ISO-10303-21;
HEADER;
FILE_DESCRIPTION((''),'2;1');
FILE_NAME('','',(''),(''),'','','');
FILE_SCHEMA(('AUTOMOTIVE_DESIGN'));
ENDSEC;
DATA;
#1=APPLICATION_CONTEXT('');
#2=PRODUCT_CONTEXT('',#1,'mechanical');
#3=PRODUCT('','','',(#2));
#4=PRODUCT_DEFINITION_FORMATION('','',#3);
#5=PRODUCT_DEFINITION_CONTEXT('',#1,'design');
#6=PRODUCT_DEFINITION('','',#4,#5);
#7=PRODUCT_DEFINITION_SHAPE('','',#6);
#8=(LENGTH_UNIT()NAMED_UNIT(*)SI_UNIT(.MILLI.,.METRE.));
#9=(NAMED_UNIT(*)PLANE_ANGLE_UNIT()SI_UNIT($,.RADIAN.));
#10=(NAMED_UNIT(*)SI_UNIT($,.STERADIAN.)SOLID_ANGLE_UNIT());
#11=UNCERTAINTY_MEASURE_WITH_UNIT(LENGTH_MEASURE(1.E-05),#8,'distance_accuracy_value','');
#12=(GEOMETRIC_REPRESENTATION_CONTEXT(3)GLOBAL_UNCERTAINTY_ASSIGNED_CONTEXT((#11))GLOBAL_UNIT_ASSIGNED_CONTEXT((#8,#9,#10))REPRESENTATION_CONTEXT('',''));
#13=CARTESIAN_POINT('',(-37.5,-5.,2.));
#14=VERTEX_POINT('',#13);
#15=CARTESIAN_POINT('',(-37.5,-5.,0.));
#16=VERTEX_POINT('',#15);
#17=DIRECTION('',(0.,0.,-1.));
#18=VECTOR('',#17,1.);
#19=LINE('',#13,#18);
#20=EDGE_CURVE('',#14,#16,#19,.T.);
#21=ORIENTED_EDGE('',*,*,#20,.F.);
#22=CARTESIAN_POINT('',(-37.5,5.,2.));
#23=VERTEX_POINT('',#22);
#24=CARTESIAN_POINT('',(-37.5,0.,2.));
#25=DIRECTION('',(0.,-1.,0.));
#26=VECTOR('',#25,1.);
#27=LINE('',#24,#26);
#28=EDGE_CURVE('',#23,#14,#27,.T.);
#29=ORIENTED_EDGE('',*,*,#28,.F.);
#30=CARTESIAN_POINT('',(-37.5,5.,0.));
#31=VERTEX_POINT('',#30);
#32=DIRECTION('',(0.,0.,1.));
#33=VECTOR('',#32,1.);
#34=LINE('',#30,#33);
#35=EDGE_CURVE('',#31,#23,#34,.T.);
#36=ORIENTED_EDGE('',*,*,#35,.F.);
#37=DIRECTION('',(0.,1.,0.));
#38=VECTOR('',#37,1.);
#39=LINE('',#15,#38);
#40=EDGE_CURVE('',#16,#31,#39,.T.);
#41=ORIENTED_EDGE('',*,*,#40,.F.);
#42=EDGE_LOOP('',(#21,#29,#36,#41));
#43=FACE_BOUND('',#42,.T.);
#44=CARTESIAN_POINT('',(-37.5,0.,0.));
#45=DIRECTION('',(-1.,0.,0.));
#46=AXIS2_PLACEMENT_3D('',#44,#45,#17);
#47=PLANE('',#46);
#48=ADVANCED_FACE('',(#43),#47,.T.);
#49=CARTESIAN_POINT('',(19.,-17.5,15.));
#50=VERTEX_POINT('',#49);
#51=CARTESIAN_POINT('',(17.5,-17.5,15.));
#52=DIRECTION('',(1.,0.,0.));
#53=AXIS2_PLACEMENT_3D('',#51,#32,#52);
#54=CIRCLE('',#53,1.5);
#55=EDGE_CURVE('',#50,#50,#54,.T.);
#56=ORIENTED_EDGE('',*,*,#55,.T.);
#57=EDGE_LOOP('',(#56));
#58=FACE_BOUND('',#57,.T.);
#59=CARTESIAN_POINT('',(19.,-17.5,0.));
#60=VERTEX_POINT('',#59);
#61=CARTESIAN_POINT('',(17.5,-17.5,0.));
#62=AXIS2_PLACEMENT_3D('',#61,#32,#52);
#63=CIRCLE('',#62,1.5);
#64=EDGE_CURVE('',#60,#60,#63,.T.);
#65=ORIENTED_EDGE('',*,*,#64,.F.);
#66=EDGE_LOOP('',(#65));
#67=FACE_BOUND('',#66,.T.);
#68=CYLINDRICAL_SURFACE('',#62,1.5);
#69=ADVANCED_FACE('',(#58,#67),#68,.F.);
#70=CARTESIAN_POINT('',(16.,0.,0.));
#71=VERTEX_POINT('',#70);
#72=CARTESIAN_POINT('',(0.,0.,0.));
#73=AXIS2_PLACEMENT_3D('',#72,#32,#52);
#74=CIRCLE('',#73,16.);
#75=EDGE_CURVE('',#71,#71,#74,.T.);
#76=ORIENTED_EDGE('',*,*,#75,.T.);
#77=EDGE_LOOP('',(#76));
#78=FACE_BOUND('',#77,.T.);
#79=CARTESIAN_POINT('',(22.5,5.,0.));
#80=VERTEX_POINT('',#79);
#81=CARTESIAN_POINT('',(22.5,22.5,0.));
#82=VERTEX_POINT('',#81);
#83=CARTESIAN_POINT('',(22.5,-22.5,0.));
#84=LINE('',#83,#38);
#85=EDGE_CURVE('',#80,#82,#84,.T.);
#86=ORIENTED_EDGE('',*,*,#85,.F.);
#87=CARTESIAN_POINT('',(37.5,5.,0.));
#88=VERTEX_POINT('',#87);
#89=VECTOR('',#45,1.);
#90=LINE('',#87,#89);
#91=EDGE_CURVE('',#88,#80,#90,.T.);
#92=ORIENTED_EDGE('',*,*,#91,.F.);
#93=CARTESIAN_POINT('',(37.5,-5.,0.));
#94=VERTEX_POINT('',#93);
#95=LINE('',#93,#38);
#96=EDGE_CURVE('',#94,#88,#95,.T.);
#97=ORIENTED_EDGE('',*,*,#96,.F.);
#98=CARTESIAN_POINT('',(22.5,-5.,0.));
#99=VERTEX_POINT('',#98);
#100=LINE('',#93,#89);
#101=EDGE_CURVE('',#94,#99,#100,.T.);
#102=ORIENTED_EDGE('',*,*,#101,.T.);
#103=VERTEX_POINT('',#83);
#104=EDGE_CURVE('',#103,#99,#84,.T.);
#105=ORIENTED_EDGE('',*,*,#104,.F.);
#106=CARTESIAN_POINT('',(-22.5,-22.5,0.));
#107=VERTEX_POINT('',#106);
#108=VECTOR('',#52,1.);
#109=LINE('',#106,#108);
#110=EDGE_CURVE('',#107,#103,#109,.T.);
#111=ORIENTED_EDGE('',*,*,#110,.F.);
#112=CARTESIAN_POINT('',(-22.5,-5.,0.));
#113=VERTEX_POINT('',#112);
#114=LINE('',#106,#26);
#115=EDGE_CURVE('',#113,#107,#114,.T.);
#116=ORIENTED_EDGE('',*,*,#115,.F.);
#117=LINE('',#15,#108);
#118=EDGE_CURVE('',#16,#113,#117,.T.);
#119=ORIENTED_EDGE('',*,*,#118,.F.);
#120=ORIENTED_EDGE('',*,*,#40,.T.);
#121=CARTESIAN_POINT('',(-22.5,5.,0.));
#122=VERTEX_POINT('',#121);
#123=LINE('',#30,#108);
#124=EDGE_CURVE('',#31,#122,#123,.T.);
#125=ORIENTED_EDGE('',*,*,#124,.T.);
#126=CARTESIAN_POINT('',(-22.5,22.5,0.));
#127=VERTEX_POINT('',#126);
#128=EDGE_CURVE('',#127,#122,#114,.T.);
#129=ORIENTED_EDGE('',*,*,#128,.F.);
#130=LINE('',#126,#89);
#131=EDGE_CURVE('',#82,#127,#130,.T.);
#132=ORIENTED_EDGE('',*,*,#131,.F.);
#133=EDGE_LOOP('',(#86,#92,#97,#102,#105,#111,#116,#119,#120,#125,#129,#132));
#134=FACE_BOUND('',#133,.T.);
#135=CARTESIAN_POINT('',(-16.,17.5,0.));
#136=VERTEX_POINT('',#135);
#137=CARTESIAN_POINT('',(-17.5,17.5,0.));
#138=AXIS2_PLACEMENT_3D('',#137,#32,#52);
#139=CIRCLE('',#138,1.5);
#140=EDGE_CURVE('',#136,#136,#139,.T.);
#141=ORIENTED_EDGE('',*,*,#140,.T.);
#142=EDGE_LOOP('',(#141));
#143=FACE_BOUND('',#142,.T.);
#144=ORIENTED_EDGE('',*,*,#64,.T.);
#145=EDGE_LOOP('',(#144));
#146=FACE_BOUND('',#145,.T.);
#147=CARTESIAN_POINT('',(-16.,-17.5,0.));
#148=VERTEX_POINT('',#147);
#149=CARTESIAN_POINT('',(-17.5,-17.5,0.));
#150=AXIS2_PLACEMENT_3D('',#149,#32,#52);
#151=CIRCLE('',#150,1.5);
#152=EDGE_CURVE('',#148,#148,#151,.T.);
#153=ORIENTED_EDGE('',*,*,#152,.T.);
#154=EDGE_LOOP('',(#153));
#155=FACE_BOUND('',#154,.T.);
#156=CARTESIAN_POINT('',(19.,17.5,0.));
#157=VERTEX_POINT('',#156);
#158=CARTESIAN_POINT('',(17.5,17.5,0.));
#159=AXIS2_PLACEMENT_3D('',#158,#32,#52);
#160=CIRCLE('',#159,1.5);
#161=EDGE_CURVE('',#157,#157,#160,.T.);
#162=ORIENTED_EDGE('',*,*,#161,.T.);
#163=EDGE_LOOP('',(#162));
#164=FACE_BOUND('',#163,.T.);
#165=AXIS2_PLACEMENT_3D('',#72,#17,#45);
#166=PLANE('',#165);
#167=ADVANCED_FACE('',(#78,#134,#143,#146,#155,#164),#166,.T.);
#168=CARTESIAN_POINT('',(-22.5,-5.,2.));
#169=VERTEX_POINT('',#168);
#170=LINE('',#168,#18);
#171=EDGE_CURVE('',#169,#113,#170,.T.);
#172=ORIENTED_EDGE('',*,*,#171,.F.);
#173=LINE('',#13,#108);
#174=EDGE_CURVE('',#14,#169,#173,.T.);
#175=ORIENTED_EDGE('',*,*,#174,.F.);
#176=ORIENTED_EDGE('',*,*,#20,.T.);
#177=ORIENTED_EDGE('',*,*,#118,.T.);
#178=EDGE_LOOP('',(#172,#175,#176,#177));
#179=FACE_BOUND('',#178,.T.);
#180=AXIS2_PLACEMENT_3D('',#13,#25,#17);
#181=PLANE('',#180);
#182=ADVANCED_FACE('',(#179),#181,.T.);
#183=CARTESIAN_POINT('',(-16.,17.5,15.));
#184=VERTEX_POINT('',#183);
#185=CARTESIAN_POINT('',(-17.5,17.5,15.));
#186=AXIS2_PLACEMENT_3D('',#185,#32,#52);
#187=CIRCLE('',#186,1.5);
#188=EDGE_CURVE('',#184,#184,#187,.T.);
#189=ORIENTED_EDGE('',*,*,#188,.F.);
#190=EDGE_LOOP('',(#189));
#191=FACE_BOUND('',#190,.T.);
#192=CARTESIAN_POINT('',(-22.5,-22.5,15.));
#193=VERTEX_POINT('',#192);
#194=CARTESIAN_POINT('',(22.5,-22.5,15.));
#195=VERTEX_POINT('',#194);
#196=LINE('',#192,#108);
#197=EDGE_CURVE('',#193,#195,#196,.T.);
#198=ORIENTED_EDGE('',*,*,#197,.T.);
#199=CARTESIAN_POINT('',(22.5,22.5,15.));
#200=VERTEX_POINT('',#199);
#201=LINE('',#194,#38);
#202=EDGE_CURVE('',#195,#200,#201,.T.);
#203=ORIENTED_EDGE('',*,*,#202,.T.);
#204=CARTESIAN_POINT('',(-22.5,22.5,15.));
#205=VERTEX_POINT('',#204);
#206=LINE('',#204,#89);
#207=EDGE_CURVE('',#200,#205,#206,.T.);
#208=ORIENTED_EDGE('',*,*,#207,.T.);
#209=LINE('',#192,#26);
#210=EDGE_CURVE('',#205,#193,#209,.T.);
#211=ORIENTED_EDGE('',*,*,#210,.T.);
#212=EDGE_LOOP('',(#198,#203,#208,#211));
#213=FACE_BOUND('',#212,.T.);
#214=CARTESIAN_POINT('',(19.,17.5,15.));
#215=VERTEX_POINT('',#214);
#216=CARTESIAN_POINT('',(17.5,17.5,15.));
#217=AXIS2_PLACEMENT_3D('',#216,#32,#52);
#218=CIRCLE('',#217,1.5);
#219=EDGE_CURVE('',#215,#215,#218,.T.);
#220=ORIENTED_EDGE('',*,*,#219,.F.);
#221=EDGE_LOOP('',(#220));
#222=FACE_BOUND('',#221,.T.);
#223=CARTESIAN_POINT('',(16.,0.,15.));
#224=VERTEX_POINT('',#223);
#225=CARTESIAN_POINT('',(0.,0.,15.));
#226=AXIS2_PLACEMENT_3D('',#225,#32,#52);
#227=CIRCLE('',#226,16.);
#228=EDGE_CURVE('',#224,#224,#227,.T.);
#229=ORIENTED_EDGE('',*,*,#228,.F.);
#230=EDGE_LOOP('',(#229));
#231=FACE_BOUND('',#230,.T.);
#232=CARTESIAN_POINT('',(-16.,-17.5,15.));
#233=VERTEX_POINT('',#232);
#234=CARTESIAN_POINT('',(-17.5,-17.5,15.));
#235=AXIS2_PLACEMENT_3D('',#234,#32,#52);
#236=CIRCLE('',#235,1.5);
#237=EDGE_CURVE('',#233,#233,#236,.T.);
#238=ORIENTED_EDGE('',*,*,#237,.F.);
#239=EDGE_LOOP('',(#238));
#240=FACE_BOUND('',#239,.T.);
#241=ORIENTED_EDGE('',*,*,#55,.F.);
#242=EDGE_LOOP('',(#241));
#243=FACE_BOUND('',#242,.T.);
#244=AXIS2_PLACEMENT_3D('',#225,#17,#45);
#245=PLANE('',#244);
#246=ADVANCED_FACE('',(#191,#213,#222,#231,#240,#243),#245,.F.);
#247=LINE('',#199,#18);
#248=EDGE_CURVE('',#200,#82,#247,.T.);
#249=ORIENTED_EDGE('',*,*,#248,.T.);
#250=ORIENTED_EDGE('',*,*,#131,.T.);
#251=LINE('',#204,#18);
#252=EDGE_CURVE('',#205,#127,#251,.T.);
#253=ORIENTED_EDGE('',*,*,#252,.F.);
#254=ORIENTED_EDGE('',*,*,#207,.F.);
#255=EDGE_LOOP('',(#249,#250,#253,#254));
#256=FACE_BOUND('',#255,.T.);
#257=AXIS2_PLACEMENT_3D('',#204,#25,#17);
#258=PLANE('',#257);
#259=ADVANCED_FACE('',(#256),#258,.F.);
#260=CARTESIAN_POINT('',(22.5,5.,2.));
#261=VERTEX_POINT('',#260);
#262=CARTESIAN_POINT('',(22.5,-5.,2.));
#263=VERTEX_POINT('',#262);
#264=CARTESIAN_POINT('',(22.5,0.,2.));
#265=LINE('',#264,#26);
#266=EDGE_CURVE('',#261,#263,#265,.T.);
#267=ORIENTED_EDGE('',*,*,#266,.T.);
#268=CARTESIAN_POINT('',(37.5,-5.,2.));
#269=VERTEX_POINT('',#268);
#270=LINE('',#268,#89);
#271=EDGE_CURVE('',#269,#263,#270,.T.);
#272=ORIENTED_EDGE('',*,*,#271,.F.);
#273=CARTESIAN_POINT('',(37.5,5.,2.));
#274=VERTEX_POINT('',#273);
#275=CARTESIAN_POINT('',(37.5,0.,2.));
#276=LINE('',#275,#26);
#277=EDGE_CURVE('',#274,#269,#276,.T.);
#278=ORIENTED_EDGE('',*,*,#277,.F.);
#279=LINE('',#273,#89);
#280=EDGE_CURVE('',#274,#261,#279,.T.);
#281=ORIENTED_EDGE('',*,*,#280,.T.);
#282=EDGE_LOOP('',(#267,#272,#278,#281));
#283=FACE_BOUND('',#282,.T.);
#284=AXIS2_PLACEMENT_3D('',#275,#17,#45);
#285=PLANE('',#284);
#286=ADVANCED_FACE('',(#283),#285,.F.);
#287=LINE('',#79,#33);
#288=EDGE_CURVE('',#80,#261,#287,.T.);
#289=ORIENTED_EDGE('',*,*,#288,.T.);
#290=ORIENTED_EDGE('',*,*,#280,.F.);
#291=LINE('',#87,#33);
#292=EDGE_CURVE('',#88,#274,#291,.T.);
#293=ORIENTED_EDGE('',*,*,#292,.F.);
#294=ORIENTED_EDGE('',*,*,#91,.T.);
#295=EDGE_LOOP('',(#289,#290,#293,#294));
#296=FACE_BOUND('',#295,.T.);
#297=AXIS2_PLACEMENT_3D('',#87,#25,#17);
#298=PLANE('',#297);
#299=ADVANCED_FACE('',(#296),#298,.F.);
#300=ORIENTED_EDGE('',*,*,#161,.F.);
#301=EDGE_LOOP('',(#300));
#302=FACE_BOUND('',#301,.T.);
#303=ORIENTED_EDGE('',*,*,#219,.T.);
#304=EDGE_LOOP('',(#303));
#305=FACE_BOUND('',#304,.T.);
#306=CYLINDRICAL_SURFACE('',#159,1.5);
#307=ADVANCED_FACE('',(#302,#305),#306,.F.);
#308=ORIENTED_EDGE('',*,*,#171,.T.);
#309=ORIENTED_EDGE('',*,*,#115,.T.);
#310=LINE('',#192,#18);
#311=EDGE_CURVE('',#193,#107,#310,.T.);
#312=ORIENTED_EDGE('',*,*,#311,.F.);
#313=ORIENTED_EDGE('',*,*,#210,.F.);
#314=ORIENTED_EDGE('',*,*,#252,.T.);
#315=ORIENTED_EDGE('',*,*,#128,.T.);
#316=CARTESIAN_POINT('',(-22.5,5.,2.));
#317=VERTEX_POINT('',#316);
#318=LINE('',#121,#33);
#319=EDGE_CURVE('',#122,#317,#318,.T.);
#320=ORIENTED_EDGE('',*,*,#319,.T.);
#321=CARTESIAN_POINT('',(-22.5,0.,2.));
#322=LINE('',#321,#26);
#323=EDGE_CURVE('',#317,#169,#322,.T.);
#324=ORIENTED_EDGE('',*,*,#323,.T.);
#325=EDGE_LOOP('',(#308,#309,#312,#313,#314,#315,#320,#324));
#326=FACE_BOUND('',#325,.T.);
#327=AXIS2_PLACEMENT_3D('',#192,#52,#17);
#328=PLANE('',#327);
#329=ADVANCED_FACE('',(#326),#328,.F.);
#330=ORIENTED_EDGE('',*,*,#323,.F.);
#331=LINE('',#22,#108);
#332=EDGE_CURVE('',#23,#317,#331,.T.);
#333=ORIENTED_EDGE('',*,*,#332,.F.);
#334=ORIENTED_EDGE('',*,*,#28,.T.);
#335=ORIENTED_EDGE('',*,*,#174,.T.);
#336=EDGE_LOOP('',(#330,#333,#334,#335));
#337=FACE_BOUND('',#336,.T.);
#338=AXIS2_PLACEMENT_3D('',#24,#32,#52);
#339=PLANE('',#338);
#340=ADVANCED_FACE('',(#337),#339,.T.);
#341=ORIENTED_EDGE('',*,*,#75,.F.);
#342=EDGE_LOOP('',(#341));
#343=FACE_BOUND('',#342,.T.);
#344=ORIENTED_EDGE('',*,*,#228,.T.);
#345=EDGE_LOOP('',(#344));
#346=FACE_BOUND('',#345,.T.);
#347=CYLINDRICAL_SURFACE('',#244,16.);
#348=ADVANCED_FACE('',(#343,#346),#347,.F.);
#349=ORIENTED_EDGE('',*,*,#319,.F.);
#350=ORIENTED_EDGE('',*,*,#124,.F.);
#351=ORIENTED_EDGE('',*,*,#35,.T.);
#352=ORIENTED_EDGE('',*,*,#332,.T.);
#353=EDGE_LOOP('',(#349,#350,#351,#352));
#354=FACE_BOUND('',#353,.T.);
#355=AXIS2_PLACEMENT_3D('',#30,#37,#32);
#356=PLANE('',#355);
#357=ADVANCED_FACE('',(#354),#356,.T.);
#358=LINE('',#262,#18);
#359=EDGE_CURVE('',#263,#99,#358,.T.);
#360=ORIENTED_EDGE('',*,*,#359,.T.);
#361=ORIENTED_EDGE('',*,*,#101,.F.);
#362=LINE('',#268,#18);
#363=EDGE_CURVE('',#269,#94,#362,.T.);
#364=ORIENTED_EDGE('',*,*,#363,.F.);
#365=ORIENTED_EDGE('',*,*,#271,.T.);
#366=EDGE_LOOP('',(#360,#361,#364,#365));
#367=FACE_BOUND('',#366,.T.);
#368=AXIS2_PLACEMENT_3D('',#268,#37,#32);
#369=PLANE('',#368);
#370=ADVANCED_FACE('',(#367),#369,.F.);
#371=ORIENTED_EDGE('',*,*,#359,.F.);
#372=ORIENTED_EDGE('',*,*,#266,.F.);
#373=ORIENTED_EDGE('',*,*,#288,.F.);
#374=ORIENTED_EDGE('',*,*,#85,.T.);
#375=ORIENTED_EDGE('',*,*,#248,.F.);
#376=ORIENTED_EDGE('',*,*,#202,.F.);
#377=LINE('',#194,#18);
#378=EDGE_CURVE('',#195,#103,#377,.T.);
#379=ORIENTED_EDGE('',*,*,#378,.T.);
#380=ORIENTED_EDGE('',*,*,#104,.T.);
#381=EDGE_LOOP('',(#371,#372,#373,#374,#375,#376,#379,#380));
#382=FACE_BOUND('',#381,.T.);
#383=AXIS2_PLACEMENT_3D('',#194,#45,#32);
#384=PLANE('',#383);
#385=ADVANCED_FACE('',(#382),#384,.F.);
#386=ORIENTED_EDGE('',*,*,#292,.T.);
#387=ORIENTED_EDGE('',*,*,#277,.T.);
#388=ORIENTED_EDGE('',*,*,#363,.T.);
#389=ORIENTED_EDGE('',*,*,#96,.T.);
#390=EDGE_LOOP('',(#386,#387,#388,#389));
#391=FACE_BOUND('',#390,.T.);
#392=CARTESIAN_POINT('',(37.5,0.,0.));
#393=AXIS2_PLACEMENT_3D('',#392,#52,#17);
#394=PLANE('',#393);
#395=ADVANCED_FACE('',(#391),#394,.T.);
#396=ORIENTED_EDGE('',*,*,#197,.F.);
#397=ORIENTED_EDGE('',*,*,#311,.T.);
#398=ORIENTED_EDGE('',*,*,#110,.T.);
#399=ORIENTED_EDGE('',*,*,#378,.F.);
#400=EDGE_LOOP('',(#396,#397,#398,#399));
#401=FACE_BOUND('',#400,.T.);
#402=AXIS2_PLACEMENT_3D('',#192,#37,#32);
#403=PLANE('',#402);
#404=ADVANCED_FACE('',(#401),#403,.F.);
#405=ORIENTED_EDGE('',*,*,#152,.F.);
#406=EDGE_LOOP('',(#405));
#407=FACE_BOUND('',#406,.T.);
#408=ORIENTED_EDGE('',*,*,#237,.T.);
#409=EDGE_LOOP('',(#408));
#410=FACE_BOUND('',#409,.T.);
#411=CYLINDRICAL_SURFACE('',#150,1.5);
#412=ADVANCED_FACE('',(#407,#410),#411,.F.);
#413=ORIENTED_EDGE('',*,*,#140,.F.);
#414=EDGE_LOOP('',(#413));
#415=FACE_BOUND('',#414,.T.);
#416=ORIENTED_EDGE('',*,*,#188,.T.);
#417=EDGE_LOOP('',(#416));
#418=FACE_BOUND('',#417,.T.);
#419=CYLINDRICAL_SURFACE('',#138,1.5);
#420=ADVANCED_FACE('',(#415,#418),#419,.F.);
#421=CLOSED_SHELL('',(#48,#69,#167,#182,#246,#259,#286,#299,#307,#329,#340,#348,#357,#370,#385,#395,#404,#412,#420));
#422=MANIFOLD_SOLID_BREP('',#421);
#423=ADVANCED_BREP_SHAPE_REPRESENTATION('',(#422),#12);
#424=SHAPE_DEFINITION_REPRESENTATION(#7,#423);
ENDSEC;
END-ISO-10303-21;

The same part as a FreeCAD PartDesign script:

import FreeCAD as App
import Part
import Sketcher

V = App.Vector
Q = App.Units.Quantity

doc = App.newDocument("Part")
params = doc.addObject("Spreadsheet::Sheet", "Params")
for row, (alias, value) in enumerate([
    ("sketch1_diameter", "32 mm"),
    ("sketch1_width", "45 mm"),
    ("pad1_length", "15 mm"),
    ("sketch2_diameter", "3 mm"),
    ("pocket1_length", "15 mm"),
    ("sketch3_width", "10 mm"),
    ("sketch3_height", "2 mm"),
    ("pad2_length", "15 mm"),
], start=1):
    params.set(f"A{row}", alias)
    params.set(f"B{row}", "=" + value)
    params.setAlias(f"B{row}", alias)

body = doc.addObject("PartDesign::Body", "Body")

# Sketch on XY plane
sketch1 = body.newObject("Sketcher::SketchObject", "Sketch")
sketch1.AttachmentSupport = (doc.getObject("XY_Plane"), [""])
sketch1.MapMode = "FlatFace"
sketch1.addGeometry(Part.LineSegment(V(-22, 22, 0), V(-22, -22, 0)), False)
sketch1.addGeometry(Part.LineSegment(V(-22, -22, 0), V(22, -22, 0)), False)
sketch1.addGeometry(Part.LineSegment(V(22, -22, 0), V(22, 22, 0)), False)
sketch1.addGeometry(Part.LineSegment(V(22, 22, 0), V(-22, 22, 0)), False)
sketch1.addGeometry(Part.Circle(V(0, 0, 0), V(0, 0, 1), 16), False)
sketch1.addConstraint(Sketcher.Constraint("Coincident", 0, 2, 1, 1))
sketch1.addConstraint(Sketcher.Constraint("Coincident", 1, 2, 2, 1))
sketch1.addConstraint(Sketcher.Constraint("Coincident", 2, 2, 3, 1))
sketch1.addConstraint(Sketcher.Constraint("Coincident", 3, 2, 0, 1))
sketch1.addConstraint(Sketcher.Constraint("Vertical", 0))
sketch1.addConstraint(Sketcher.Constraint("Horizontal", 1))
sketch1.addConstraint(Sketcher.Constraint("Vertical", 2))
sketch1.addConstraint(Sketcher.Constraint("Horizontal", 3))
sketch1.addConstraint(Sketcher.Constraint("Coincident", 4, 3, -1, 1))
sketch1.addConstraint(Sketcher.Constraint("Symmetric", 0, 2, 2, 2, -1, 1))
sketch1.addConstraint(Sketcher.Constraint("Equal", 3, 0))
sketch1.addConstraint(Sketcher.Constraint("Diameter", 4, Q("32 mm")))
sketch1.addConstraint(Sketcher.Constraint("DistanceX", 1, 1, 1, 2, Q("45 mm")))
sketch1.setExpression("Constraints[11]", "Params.sketch1_diameter")
sketch1.setExpression("Constraints[12]", "Params.sketch1_width")
pad1 = body.newObject("PartDesign::Pad", "Pad")
pad1.Profile = sketch1
pad1.setExpression("Length", "Params.pad1_length")

# Sketch on XY plane
sketch2 = body.newObject("Sketcher::SketchObject", "Sketch001")
sketch2.AttachmentSupport = (doc.getObject("XY_Plane"), [""])
sketch2.MapMode = "FlatFace"
sketch2.AttachmentOffset = App.Placement(V(0, 0, 15), App.Rotation())
sketch2.addGeometry(Part.Circle(V(-17.5, 17.5, 0), V(0, 0, 1), 1.5), False)
sketch2.addGeometry(Part.Circle(V(17.5, -17.5, 0), V(0, 0, 1), 1.5), False)
sketch2.addGeometry(Part.Circle(V(-17.5, -17.5, 0), V(0, 0, 1), 1.5), False)
sketch2.addGeometry(Part.Circle(V(17.5, 17.5, 0), V(0, 0, 1), 1.5), False)
sketch2.addConstraint(Sketcher.Constraint("Equal", 0, 1))
sketch2.addConstraint(Sketcher.Constraint("Equal", 1, 2))
sketch2.addConstraint(Sketcher.Constraint("Equal", 2, 3))
sketch2.addConstraint(Sketcher.Constraint("Symmetric", 0, 3, 1, 3, -1, 1))
sketch2.addConstraint(Sketcher.Constraint("Symmetric", 2, 3, 3, 3, -1, 1))
sketch2.addConstraint(Sketcher.Constraint("Symmetric", 1, 3, 2, 3, -2))
sketch2.addConstraint(Sketcher.Constraint("Diameter", 0, Q("3 mm")))
sketch2.addConstraint(Sketcher.Constraint("DistanceX", 0, 3, 1, 3, Q("35 mm")))
sketch2.addConstraint(Sketcher.Constraint("DistanceY", 1, 3, 0, 3, Q("35 mm")))
sketch2.setExpression("Constraints[6]", "Params.sketch2_diameter")
pocket1 = body.newObject("PartDesign::Pocket", "Pocket")
pocket1.Profile = sketch2
pocket1.setExpression("Length", "Params.pocket1_length")

# Sketch on YZ plane
sketch3 = body.newObject("Sketcher::SketchObject", "Sketch002")
sketch3.AttachmentSupport = (doc.getObject("YZ_Plane"), [""])
sketch3.MapMode = "FlatFace"
sketch3.AttachmentOffset = App.Placement(V(0, 0, 22.5), App.Rotation())
sketch3.addGeometry(Part.LineSegment(V(5, 2, 0), V(-5, 2, 0)), False)
sketch3.addGeometry(Part.LineSegment(V(-5, 2, 0), V(-5, 0, 0)), False)
sketch3.addGeometry(Part.LineSegment(V(-5, 0, 0), V(5, 0, 0)), False)
sketch3.addGeometry(Part.LineSegment(V(5, 0, 0), V(5, 2, 0)), False)
sketch3.addConstraint(Sketcher.Constraint("Coincident", 0, 2, 1, 1))
sketch3.addConstraint(Sketcher.Constraint("Coincident", 1, 2, 2, 1))
sketch3.addConstraint(Sketcher.Constraint("Coincident", 2, 2, 3, 1))
sketch3.addConstraint(Sketcher.Constraint("Coincident", 3, 2, 0, 1))
sketch3.addConstraint(Sketcher.Constraint("Horizontal", 0))
sketch3.addConstraint(Sketcher.Constraint("Vertical", 1))
sketch3.addConstraint(Sketcher.Constraint("Horizontal", 2))
sketch3.addConstraint(Sketcher.Constraint("Vertical", 3))
sketch3.addConstraint(Sketcher.Constraint("Symmetric", 1, 2, 2, 2, -1, 1))
sketch3.addConstraint(Sketcher.Constraint("DistanceX", 0, 2, 0, 1, Q("10 mm")))
sketch3.addConstraint(Sketcher.Constraint("DistanceY", 1, 2, 1, 1, Q("2 mm")))
sketch3.setExpression("Constraints[9]", "Params.sketch3_width")
sketch3.setExpression("Constraints[10]", "Params.sketch3_height")
pad2 = body.newObject("PartDesign::Pad", "Pad001")
pad2.Profile = sketch3
pad2.setExpression("Length", "Params.pad2_length")
doc.recompute()

mirrored = body.newObject("PartDesign::Mirrored", "Mirrored")
mirrored.Originals = [pad2]
mirrored.MirrorPlane = (doc.getObject("YZ_Plane"), [""])
body.Tip = mirrored

doc.recompute()
